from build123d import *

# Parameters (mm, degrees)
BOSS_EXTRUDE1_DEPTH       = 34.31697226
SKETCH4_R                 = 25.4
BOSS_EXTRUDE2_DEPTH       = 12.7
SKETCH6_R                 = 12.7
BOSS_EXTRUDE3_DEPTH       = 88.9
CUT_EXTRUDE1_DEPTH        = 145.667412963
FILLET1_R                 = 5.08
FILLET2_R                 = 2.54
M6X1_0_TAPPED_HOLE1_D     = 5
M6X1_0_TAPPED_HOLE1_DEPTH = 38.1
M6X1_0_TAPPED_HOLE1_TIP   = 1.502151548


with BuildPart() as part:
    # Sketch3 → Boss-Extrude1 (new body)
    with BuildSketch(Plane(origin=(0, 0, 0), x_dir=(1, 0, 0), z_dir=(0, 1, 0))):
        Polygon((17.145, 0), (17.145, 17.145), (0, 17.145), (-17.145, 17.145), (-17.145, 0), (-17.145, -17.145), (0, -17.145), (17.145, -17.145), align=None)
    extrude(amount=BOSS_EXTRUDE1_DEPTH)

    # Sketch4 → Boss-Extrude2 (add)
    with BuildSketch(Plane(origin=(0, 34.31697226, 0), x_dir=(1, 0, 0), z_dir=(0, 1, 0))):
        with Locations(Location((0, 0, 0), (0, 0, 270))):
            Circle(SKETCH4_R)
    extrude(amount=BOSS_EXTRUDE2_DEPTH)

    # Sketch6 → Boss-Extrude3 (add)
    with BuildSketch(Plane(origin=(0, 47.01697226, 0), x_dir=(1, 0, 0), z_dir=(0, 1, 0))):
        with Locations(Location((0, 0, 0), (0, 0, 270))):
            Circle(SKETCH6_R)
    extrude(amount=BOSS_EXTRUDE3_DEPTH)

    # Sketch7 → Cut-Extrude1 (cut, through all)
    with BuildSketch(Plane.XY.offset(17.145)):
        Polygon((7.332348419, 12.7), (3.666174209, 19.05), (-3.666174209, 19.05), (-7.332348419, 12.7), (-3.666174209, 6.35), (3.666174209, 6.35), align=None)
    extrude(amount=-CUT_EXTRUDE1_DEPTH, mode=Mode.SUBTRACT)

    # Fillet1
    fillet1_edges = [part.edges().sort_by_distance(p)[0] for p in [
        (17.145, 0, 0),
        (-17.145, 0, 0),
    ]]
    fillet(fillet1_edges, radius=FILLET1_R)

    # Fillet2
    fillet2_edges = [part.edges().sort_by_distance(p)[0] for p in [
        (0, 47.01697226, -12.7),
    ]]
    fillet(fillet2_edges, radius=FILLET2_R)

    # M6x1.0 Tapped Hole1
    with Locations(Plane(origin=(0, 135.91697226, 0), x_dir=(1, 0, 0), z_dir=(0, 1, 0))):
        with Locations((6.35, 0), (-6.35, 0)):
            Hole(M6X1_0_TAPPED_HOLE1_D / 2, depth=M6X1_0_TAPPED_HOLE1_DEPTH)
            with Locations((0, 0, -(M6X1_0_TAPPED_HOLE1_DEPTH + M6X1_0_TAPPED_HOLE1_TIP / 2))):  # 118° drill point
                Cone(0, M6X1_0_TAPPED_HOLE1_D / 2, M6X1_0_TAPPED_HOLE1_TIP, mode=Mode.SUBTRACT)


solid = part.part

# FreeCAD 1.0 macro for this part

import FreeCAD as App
import Part
import Sketcher
Q = App.Units.Quantity


def edges_at(feature, points):
    """Names of the edges that pass closest to the given points."""
    edges = feature.Shape.Edges
    near = lambda p: min(range(len(edges)), key=lambda i: edges[i].distToShape(Part.Vertex(*p))[0])
    return sorted({f"Edge{near(p) + 1}" for p in points})

doc = App.newDocument("Part")
body = doc.addObject("PartDesign::Body", "Body")

# Sketch on XZ plane
sketch1 = body.newObject("Sketcher::SketchObject", "Sketch")
sketch1.AttachmentSupport = (doc.getObject("XZ_Plane"), [""])
sketch1.MapMode = "FlatFace"
sketch1.addGeometry(Part.LineSegment(App.Vector(17, -17, 0), App.Vector(-17, -17, 0)), False)
sketch1.addGeometry(Part.LineSegment(App.Vector(-17, -17, 0), App.Vector(-17, 17, 0)), False)
sketch1.addGeometry(Part.LineSegment(App.Vector(-17, 17, 0), App.Vector(17, 17, 0)), False)
sketch1.addGeometry(Part.LineSegment(App.Vector(17, 17, 0), App.Vector(17, -17, 0)), False)
sketch1.addConstraint(Sketcher.Constraint("Coincident", 0, 2, 1, 1))
sketch1.addConstraint(Sketcher.Constraint("Coincident", 1, 2, 2, 1))
sketch1.addConstraint(Sketcher.Constraint("Coincident", 2, 2, 3, 1))
sketch1.addConstraint(Sketcher.Constraint("Coincident", 3, 2, 0, 1))
sketch1.addConstraint(Sketcher.Constraint("Horizontal", 0))
sketch1.addConstraint(Sketcher.Constraint("Vertical", 1))
sketch1.addConstraint(Sketcher.Constraint("Horizontal", 2))
sketch1.addConstraint(Sketcher.Constraint("Vertical", 3))
sketch1.addConstraint(Sketcher.Constraint("Symmetric", 0, 2, 2, 2, -1, 1))
sketch1.addConstraint(Sketcher.Constraint("Equal", 2, 1))
sketch1.addConstraint(Sketcher.Constraint("DistanceX", 0, 2, 0, 1, Q("1.35 in")))
pad1 = body.newObject("PartDesign::Pad", "Pad")
pad1.Profile = sketch1
pad1.Length = 34.316972
pad1.Reversed = True

# Sketch on XZ plane
sketch2 = body.newObject("Sketcher::SketchObject", "Sketch001")
sketch2.AttachmentSupport = (doc.getObject("XZ_Plane"), [""])
sketch2.MapMode = "FlatFace"
sketch2.AttachmentOffset = App.Placement(App.Vector(0, 0, -34.316972), App.Rotation())
sketch2.addGeometry(Part.Circle(App.Vector(0, 0, 0), App.Vector(0, 0, 1), 25), False)
sketch2.addConstraint(Sketcher.Constraint("Coincident", 0, 3, -1, 1))
sketch2.addConstraint(Sketcher.Constraint("Diameter", 0, Q("2 in")))
pad2 = body.newObject("PartDesign::Pad", "Pad001")
pad2.Profile = sketch2
pad2.Length = Q("0.5 in")
pad2.Reversed = True

# Sketch on XZ plane
sketch3 = body.newObject("Sketcher::SketchObject", "Sketch002")
sketch3.AttachmentSupport = (doc.getObject("XZ_Plane"), [""])
sketch3.MapMode = "FlatFace"
sketch3.AttachmentOffset = App.Placement(App.Vector(0, 0, -47.016972), App.Rotation())
sketch3.addGeometry(Part.Circle(App.Vector(0, 0, 0), App.Vector(0, 0, 1), 13), False)
sketch3.addConstraint(Sketcher.Constraint("Coincident", 0, 3, -1, 1))
sketch3.addConstraint(Sketcher.Constraint("Diameter", 0, Q("1 in")))
pad3 = body.newObject("PartDesign::Pad", "Pad002")
pad3.Profile = sketch3
pad3.Length = Q("3.5 in")
pad3.Reversed = True

# Sketch on XY plane
sketch4 = body.newObject("Sketcher::SketchObject", "Sketch003")
sketch4.AttachmentSupport = (doc.getObject("XY_Plane"), [""])
sketch4.MapMode = "FlatFace"
sketch4.AttachmentOffset = App.Placement(App.Vector(0, 0, 0.675 * 25.4), App.Rotation())
sketch4.addGeometry(Part.LineSegment(App.Vector(7, 13, 0), App.Vector(4, 19, 0)), False)
sketch4.addGeometry(Part.LineSegment(App.Vector(4, 19, 0), App.Vector(-4, 19, 0)), False)
sketch4.addGeometry(Part.LineSegment(App.Vector(-4, 19, 0), App.Vector(-7, 13, 0)), False)
sketch4.addGeometry(Part.LineSegment(App.Vector(-7, 13, 0), App.Vector(-4, 6, 0)), False)
sketch4.addGeometry(Part.LineSegment(App.Vector(-4, 6, 0), App.Vector(4, 6, 0)), False)
sketch4.addGeometry(Part.LineSegment(App.Vector(4, 6, 0), App.Vector(7, 13, 0)), False)
sketch4.addConstraint(Sketcher.Constraint("Coincident", 0, 2, 1, 1))
sketch4.addConstraint(Sketcher.Constraint("Coincident", 1, 2, 2, 1))
sketch4.addConstraint(Sketcher.Constraint("Coincident", 2, 2, 3, 1))
sketch4.addConstraint(Sketcher.Constraint("Coincident", 3, 2, 4, 1))
sketch4.addConstraint(Sketcher.Constraint("Coincident", 4, 2, 5, 1))
sketch4.addConstraint(Sketcher.Constraint("Coincident", 5, 2, 0, 1))
sketch4.addConstraint(Sketcher.Constraint("Horizontal", 1))
sketch4.addConstraint(Sketcher.Constraint("Horizontal", 4))
sketch4.addConstraint(Sketcher.Constraint("Symmetric", 2, 2, 5, 2, -2))
sketch4.addConstraint(Sketcher.Constraint("Parallel", 0, 3))
sketch4.addConstraint(Sketcher.Constraint("Parallel", 2, 5))
sketch4.addConstraint(Sketcher.Constraint("Vertical", 1, 2, 3, 2))
sketch4.addConstraint(Sketcher.Constraint("Vertical", 0, 2, 4, 2))
sketch4.addConstraint(Sketcher.Constraint("Angle", 0, Q("120 deg")))
sketch4.addConstraint(Sketcher.Constraint("DistanceY", -1, 1, 2, 2, Q("0.5 in")))
sketch4.addConstraint(Sketcher.Constraint("DistanceY", 3, 2, 1, 2, Q("0.5 in")))
sketch4.addConstraint(Sketcher.Constraint("DistanceX", 1, 2, 1, 1, Q("7.332348 mm")))
pocket1 = body.newObject("PartDesign::Pocket", "Pocket")
pocket1.Profile = sketch4
pocket1.Type = "ThroughAll"
doc.recompute()

fillet = body.newObject("PartDesign::Fillet", "Fillet")
fillet.Base = (pocket1, edges_at(pocket1, [(17.145, 0, 0), (-17.145, 0, 0)]))
fillet.Radius = Q("0.2 in")
doc.recompute()

fillet2 = body.newObject("PartDesign::Fillet", "Fillet001")
fillet2.Base = (fillet, edges_at(fillet, [(0, 47.017, -12.7)]))
fillet2.Radius = Q("0.1 in")

# Sketch on XZ plane
sketch5 = body.newObject("Sketcher::SketchObject", "Sketch004")
sketch5.AttachmentSupport = (doc.getObject("XZ_Plane"), [""])
sketch5.MapMode = "FlatFace"
sketch5.AttachmentOffset = App.Placement(App.Vector(0, 0, -135.916972), App.Rotation())
sketch5.addGeometry(Part.Circle(App.Vector(6.3, 0, 0), App.Vector(0, 0, 1), 2.5), False)
sketch5.addGeometry(Part.Circle(App.Vector(-6.3, 0, 0), App.Vector(0, 0, 1), 2.5), False)
sketch5.addConstraint(Sketcher.Constraint("Equal", 0, 1))
sketch5.addConstraint(Sketcher.Constraint("Symmetric", 0, 3, 1, 3, -1, 1))
sketch5.addConstraint(Sketcher.Constraint("PointOnObject", 0, 3, -1))
sketch5.addConstraint(Sketcher.Constraint("DistanceX", 1, 3, 0, 3, Q("0.5 in")))
sketch5.addConstraint(Sketcher.Constraint("Diameter", 0, Q("5 mm")))
doc.recompute()
hole = body.newObject("PartDesign::Hole", "Hole")
hole.Profile = sketch5
hole.ThreadType = "None"
hole.Diameter = 5
hole.DepthType = "Dimension"
hole.Depth = Q("1.5 in")
hole.DrillPoint = "Angled"
hole.DrillPointAngle = 118
hole.Reversed = True

doc.recompute()
